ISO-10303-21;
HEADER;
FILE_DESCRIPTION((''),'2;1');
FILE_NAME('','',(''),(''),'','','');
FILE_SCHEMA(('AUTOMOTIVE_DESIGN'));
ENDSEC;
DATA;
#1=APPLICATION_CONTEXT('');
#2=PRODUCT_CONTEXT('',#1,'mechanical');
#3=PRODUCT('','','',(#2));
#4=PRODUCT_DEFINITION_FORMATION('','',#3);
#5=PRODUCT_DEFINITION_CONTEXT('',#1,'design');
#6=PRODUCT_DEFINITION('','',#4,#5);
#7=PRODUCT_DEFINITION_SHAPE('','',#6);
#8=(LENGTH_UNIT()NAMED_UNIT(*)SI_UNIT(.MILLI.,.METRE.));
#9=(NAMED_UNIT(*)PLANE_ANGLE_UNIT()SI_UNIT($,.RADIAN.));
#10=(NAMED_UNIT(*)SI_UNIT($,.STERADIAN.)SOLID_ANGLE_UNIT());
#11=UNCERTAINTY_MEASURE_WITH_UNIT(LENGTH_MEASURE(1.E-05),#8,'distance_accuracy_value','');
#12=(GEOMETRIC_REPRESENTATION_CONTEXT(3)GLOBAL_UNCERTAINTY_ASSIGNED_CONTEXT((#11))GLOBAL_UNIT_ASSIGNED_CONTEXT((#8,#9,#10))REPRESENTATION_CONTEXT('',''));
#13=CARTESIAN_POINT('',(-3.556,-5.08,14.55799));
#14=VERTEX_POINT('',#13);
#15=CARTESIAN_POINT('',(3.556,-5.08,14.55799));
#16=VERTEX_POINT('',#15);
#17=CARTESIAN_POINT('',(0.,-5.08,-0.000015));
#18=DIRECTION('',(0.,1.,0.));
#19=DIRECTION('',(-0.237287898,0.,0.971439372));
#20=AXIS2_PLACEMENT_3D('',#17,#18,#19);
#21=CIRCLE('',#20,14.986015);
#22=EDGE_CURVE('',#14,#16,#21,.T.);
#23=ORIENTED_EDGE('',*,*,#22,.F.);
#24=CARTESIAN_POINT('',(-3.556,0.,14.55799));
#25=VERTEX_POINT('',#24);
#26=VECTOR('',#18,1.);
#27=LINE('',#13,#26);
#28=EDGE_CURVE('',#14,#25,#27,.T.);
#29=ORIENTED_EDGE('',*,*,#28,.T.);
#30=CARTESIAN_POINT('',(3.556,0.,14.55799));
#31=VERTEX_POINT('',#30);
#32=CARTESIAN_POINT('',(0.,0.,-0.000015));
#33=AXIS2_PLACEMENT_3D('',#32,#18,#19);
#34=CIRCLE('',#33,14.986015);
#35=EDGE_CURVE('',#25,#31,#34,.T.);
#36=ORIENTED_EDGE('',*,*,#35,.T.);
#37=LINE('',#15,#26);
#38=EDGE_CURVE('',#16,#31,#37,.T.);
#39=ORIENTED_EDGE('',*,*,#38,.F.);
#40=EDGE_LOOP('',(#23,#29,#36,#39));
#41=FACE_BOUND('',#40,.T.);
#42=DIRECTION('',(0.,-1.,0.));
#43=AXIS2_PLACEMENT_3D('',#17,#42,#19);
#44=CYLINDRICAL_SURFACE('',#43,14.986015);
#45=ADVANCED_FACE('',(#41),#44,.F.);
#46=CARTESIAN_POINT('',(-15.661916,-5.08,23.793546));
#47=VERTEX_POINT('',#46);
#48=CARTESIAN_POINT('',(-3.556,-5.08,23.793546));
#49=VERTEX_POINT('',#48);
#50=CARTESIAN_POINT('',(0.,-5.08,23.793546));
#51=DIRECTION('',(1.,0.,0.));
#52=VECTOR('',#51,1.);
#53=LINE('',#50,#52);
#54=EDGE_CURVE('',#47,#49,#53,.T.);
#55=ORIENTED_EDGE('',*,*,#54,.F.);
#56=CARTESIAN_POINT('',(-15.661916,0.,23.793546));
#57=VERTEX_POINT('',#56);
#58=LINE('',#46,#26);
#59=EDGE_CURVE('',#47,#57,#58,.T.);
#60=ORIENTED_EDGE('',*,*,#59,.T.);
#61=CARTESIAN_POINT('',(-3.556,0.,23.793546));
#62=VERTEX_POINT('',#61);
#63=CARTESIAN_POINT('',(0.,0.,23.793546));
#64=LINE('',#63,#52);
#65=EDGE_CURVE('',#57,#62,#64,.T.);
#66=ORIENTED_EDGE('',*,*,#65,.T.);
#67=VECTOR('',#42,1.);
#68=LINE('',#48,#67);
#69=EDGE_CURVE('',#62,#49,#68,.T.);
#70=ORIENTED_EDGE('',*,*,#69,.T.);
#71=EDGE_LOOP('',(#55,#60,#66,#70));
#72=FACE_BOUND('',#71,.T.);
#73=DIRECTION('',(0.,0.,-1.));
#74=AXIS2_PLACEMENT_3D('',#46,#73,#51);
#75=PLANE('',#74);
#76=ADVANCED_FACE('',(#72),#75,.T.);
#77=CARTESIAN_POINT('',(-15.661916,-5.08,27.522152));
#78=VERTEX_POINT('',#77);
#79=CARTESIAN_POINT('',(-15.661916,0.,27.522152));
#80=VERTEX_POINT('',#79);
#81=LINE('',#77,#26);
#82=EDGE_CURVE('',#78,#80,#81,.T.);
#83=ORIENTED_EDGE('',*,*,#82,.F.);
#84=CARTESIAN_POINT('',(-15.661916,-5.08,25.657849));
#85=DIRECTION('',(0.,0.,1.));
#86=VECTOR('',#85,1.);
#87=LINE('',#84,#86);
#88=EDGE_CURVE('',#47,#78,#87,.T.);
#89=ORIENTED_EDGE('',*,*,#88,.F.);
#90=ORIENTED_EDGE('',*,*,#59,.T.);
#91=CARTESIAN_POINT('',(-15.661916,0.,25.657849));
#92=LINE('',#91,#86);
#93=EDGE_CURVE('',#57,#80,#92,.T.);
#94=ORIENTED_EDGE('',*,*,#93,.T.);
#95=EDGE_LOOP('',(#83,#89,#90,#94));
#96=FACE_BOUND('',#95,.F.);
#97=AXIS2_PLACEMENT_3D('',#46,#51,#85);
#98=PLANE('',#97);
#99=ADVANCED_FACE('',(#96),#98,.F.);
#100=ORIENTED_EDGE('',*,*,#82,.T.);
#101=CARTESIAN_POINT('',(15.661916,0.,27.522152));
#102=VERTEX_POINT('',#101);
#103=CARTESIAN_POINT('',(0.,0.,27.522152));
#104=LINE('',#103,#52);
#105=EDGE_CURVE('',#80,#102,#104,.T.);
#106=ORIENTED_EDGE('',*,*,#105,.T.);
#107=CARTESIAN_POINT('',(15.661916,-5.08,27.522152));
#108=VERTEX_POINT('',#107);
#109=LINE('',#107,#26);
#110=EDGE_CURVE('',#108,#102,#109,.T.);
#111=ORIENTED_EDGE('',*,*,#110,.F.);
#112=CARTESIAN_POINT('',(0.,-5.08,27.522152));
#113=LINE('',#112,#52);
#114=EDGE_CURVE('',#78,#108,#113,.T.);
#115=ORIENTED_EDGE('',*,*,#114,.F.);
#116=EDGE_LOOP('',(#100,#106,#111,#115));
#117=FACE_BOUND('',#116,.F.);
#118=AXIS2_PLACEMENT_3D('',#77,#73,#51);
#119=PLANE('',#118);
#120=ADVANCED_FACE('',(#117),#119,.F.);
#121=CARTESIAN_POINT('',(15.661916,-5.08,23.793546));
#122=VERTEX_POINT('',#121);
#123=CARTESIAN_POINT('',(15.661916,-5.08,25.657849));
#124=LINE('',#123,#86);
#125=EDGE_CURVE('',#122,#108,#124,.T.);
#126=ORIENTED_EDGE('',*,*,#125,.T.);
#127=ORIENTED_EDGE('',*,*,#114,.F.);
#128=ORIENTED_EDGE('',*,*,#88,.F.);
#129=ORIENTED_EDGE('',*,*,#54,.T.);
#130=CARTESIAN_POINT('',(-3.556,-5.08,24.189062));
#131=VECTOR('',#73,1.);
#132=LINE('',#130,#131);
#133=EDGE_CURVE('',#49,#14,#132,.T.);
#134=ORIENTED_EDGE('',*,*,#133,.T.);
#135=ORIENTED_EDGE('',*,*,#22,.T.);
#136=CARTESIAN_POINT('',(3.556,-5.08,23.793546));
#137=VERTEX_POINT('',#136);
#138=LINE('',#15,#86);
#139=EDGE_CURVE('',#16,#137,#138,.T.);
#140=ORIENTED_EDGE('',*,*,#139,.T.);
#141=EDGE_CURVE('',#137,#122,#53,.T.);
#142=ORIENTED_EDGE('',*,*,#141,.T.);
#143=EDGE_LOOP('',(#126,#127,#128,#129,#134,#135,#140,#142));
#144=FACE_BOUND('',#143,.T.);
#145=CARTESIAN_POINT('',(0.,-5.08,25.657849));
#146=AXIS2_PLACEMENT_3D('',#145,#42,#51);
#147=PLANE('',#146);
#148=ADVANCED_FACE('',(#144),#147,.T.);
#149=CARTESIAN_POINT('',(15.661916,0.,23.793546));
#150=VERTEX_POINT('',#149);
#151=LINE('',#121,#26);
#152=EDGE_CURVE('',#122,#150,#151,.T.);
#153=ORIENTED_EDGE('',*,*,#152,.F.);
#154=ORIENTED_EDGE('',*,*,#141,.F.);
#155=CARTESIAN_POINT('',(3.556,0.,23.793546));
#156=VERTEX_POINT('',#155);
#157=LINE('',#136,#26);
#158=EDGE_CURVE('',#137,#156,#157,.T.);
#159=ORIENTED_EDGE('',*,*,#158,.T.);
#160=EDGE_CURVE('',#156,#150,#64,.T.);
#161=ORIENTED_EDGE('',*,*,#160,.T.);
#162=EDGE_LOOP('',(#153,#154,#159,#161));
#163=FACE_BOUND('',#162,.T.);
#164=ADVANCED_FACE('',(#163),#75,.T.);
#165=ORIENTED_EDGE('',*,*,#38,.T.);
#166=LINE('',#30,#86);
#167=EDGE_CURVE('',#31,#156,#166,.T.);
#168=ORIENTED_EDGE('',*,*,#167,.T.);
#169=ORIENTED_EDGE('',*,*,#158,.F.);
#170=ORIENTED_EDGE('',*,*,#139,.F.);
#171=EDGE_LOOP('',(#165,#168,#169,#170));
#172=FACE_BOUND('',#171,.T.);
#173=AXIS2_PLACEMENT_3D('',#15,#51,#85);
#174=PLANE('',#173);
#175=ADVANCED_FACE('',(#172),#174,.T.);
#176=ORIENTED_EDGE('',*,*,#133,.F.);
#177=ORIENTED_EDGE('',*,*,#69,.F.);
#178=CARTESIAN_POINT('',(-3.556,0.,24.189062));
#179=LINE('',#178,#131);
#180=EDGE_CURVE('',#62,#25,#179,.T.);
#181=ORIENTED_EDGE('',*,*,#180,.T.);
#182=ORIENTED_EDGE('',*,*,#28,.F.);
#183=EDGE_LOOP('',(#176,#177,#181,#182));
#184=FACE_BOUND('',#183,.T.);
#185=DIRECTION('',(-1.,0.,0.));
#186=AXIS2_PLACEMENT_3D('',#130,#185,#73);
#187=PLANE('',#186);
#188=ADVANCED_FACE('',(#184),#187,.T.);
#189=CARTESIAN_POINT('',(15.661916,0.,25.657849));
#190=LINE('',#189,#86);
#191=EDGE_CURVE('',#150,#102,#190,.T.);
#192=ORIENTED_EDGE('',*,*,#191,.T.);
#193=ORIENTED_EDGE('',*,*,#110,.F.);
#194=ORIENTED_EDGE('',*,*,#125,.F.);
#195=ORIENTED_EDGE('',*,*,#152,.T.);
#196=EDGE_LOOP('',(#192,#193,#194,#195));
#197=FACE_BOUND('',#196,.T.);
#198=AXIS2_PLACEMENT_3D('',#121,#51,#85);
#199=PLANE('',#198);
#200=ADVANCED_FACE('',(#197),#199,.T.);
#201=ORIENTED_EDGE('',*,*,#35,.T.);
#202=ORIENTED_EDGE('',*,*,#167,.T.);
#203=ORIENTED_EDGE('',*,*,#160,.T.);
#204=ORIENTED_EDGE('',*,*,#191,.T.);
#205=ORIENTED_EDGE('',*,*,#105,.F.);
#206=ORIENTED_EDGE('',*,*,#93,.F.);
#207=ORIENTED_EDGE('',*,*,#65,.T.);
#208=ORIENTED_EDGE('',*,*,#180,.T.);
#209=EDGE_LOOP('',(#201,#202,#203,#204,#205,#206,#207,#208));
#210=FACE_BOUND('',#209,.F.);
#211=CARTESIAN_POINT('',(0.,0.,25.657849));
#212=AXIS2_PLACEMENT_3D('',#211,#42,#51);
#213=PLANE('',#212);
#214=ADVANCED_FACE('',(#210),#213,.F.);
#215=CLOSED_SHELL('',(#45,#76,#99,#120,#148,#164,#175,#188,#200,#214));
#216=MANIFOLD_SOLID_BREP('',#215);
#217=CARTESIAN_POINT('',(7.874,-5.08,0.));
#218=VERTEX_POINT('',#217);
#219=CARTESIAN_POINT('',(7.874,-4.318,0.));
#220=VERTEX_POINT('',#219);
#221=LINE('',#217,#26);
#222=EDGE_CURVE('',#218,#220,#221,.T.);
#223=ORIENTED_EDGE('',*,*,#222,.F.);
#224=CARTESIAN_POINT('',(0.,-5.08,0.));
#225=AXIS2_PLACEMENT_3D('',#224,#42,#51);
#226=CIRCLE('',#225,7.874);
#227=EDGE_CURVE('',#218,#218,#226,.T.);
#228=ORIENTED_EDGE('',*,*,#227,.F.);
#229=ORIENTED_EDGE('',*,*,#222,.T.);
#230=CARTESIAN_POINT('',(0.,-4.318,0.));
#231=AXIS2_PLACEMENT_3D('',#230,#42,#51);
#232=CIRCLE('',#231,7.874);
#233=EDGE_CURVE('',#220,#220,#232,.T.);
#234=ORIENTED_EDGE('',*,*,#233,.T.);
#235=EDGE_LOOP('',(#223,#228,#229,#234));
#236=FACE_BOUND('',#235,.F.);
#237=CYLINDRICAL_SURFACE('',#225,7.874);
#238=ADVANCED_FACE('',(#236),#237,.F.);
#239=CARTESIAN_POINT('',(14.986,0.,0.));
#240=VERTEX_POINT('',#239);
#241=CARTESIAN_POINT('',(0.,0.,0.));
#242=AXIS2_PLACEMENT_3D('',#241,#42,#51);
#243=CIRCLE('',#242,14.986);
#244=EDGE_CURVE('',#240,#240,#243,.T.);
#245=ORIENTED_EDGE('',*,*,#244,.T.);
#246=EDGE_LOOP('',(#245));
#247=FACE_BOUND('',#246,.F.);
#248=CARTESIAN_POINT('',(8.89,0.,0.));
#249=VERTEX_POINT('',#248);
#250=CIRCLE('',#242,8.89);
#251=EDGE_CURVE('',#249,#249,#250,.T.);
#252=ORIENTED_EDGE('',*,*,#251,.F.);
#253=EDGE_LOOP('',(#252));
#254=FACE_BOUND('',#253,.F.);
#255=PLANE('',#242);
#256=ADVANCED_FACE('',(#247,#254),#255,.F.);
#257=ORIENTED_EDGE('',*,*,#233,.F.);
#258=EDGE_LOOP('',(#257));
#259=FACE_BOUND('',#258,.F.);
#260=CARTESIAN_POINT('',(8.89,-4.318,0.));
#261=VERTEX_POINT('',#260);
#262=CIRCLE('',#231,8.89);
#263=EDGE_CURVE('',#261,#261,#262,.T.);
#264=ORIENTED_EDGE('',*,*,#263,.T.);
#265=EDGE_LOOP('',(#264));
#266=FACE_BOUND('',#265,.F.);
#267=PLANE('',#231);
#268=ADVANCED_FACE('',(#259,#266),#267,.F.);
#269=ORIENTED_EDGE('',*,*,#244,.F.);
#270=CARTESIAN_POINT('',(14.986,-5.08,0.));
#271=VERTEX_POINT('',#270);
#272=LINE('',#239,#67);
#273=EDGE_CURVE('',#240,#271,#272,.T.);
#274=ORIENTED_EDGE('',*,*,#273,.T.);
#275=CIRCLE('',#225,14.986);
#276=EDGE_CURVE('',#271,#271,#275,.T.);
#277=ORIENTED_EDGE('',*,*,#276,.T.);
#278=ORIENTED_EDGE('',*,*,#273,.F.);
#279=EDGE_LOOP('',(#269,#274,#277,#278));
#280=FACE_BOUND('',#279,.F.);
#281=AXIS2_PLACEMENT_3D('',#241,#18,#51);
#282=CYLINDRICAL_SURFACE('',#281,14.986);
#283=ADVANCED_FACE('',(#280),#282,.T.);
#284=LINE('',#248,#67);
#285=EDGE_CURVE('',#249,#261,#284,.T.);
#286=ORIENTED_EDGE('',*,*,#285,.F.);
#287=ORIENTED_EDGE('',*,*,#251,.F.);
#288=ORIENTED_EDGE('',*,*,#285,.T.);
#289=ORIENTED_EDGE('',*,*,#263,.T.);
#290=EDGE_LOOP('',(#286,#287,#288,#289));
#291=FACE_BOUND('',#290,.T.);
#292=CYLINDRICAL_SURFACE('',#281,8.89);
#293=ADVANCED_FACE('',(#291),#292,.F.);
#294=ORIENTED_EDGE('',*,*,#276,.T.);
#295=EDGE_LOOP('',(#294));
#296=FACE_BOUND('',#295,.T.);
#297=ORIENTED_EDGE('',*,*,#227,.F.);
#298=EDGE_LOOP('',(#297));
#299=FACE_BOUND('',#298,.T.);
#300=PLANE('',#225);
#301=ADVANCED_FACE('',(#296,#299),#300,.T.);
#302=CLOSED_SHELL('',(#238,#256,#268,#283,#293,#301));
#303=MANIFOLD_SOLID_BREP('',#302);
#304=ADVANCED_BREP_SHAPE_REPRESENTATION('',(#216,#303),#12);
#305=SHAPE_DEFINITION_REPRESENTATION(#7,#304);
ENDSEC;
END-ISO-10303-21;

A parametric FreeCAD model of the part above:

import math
import FreeCAD as App
import Part
import Sketcher
Q = App.Units.Quantity


def add_polygon(sketch, points):
    """Adds a closed chain of lines whose ends are joined by coincident constraints."""
    first, n = sketch.GeometryCount, len(points)
    for a, b in zip(points, points[1:] + points[:1]):
        sketch.addGeometry(Part.LineSegment(App.Vector(*a, 0), App.Vector(*b, 0)), False)
    for i in range(n):
        sketch.addConstraint(Sketcher.Constraint("Coincident", first + i, 2, first + (i + 1) % n, 1))

doc = App.newDocument("Part")
body = doc.addObject("PartDesign::Body", "Body")

# Sketch on XZ plane
sketch1 = body.newObject("Sketcher::SketchObject", "Sketch")
sketch1.AttachmentSupport = (doc.getObject("XZ_Plane"), [""])
sketch1.MapMode = "FlatFace"
sketch1.addGeometry(Part.Circle(App.Vector(0, 0, 0), App.Vector(0, 0, 1), 15), False)
sketch1.addConstraint(Sketcher.Constraint("Coincident", 0, 3, -1, 1))
sketch1.addConstraint(Sketcher.Constraint("Diameter", 0, Q("1.18 in")))
pad1 = body.newObject("PartDesign::Pad", "Pad")
pad1.Profile = sketch1
pad1.Length = Q("0.2 in")

# Sketch on XZ plane
sketch2 = body.newObject("Sketcher::SketchObject", "Sketch001")
sketch2.AttachmentSupport = (doc.getObject("XZ_Plane"), [""])
sketch2.MapMode = "FlatFace"
sketch2.AttachmentOffset = App.Placement(App.Vector(0, 0, 0.2 * 25.4), App.Rotation())
sketch2.addGeometry(Part.Circle(App.Vector(0, 0, 0), App.Vector(0, 0, 1), 8), False)
sketch2.addConstraint(Sketcher.Constraint("Coincident", 0, 3, -1, 1))
sketch2.addConstraint(Sketcher.Constraint("Diameter", 0, Q("0.62 in")))
pocket1 = body.newObject("PartDesign::Pocket", "Pocket")
pocket1.Profile = sketch2
pocket1.Type = "ThroughAll"

# Sketch on XZ plane
sketch3 = body.newObject("Sketcher::SketchObject", "Sketch002")
sketch3.AttachmentSupport = (doc.getObject("XZ_Plane"), [""])
sketch3.MapMode = "FlatFace"
sketch3.addGeometry(Part.Circle(App.Vector(0, 0, 0), App.Vector(0, 0, 1), 9), False)
sketch3.addConstraint(Sketcher.Constraint("Coincident", 0, 3, -1, 1))
sketch3.addConstraint(Sketcher.Constraint("Diameter", 0, Q("0.7 in")))
pocket2 = body.newObject("PartDesign::Pocket", "Pocket001")
pocket2.Profile = sketch3
pocket2.Length = Q("0.17 in")
pocket2.Reversed = True
body2 = doc.addObject("PartDesign::Body", "Body001")

# Sketch on XZ plane
sketch4 = body2.newObject("Sketcher::SketchObject", "Sketch003")
sketch4.AttachmentSupport = (doc.getObject("XZ_Plane001"), [""])
sketch4.MapMode = "FlatFace"
sketch4.AttachmentOffset = App.Placement(App.Vector(0, 0, 0.2 * 25.4), App.Rotation())
sketch4.addGeometry(Part.ArcOfCircle(Part.Circle(App.Vector(0, 0, 0), App.Vector(0, 0, 1), 15), math.radians(76), math.radians(104)), False)
sketch4.addGeometry(Part.LineSegment(App.Vector(4, 15, 0), App.Vector(4, 24, 0)), False)
sketch4.addGeometry(Part.LineSegment(App.Vector(4, 24, 0), App.Vector(-4, 24, 0)), False)
sketch4.addGeometry(Part.LineSegment(App.Vector(-4, 24, 0), App.Vector(-4, 15, 0)), False)
sketch4.addConstraint(Sketcher.Constraint("Coincident", 0, 1, 1, 1))
sketch4.addConstraint(Sketcher.Constraint("Coincident", 1, 2, 2, 1))
sketch4.addConstraint(Sketcher.Constraint("Coincident", 2, 2, 3, 1))
sketch4.addConstraint(Sketcher.Constraint("Coincident", 3, 2, 0, 2))
sketch4.addConstraint(Sketcher.Constraint("Vertical", 1))
sketch4.addConstraint(Sketcher.Constraint("Horizontal", 2))
sketch4.addConstraint(Sketcher.Constraint("Vertical", 3))
sketch4.addConstraint(Sketcher.Constraint("Symmetric", 0, 1, 3, 2, -2))
sketch4.addConstraint(Sketcher.Constraint("DistanceX", 2, 2, 2, 1, Q("0.28 in")))
sketch4.addConstraint(Sketcher.Constraint("Radius", 0, Q("14.986015 mm")))
sketch4.addConstraint(Sketcher.Constraint("DistanceY", 1, 1, 1, 2, Q("9.631072 mm")))
sketch4.addConstraint(Sketcher.Constraint("DistanceY", -1, 1, 0, 1, Q("14.55799 mm")))
pad2 = body2.newObject("PartDesign::Pad", "Pad001")
pad2.Profile = sketch4
pad2.Length = Q("0.2 in")
pad2.Reversed = True

# Sketch on XZ plane
sketch5 = body2.newObject("Sketcher::SketchObject", "Sketch004")
sketch5.AttachmentSupport = (doc.getObject("XZ_Plane001"), [""])
sketch5.MapMode = "FlatFace"
sketch5.AttachmentOffset = App.Placement(App.Vector(0, 0, 0.2 * 25.4), App.Rotation())
add_polygon(sketch5, [(-15.7, 27.5), (-15.7, 23.8), (15.7, 23.8), (15.7, 27.5)])  # lines 0-3
sketch5.addConstraint(Sketcher.Constraint("Vertical", 0))
sketch5.addConstraint(Sketcher.Constraint("Horizontal", 1))
sketch5.addConstraint(Sketcher.Constraint("Vertical", 2))
sketch5.addConstraint(Sketcher.Constraint("Horizontal", 3))
sketch5.addConstraint(Sketcher.Constraint("DistanceX", 1, 1, 1, 2, Q("31.323832 mm")))
sketch5.addConstraint(Sketcher.Constraint("DistanceY", 0, 2, 0, 1, Q("3.728606 mm")))
sketch5.addConstraint(Sketcher.Constraint("DistanceY", -1, 1, 2, 2, Q("27.522152 mm")))
sketch5.addConstraint(Sketcher.Constraint("DistanceX", 0, 2, -1, 1, Q("15.661916 mm")))
pad3 = body2.newObject("PartDesign::Pad", "Pad002")
pad3.Profile = sketch5
pad3.Length = Q("0.2 in")
pad3.Reversed = True

doc.recompute()
